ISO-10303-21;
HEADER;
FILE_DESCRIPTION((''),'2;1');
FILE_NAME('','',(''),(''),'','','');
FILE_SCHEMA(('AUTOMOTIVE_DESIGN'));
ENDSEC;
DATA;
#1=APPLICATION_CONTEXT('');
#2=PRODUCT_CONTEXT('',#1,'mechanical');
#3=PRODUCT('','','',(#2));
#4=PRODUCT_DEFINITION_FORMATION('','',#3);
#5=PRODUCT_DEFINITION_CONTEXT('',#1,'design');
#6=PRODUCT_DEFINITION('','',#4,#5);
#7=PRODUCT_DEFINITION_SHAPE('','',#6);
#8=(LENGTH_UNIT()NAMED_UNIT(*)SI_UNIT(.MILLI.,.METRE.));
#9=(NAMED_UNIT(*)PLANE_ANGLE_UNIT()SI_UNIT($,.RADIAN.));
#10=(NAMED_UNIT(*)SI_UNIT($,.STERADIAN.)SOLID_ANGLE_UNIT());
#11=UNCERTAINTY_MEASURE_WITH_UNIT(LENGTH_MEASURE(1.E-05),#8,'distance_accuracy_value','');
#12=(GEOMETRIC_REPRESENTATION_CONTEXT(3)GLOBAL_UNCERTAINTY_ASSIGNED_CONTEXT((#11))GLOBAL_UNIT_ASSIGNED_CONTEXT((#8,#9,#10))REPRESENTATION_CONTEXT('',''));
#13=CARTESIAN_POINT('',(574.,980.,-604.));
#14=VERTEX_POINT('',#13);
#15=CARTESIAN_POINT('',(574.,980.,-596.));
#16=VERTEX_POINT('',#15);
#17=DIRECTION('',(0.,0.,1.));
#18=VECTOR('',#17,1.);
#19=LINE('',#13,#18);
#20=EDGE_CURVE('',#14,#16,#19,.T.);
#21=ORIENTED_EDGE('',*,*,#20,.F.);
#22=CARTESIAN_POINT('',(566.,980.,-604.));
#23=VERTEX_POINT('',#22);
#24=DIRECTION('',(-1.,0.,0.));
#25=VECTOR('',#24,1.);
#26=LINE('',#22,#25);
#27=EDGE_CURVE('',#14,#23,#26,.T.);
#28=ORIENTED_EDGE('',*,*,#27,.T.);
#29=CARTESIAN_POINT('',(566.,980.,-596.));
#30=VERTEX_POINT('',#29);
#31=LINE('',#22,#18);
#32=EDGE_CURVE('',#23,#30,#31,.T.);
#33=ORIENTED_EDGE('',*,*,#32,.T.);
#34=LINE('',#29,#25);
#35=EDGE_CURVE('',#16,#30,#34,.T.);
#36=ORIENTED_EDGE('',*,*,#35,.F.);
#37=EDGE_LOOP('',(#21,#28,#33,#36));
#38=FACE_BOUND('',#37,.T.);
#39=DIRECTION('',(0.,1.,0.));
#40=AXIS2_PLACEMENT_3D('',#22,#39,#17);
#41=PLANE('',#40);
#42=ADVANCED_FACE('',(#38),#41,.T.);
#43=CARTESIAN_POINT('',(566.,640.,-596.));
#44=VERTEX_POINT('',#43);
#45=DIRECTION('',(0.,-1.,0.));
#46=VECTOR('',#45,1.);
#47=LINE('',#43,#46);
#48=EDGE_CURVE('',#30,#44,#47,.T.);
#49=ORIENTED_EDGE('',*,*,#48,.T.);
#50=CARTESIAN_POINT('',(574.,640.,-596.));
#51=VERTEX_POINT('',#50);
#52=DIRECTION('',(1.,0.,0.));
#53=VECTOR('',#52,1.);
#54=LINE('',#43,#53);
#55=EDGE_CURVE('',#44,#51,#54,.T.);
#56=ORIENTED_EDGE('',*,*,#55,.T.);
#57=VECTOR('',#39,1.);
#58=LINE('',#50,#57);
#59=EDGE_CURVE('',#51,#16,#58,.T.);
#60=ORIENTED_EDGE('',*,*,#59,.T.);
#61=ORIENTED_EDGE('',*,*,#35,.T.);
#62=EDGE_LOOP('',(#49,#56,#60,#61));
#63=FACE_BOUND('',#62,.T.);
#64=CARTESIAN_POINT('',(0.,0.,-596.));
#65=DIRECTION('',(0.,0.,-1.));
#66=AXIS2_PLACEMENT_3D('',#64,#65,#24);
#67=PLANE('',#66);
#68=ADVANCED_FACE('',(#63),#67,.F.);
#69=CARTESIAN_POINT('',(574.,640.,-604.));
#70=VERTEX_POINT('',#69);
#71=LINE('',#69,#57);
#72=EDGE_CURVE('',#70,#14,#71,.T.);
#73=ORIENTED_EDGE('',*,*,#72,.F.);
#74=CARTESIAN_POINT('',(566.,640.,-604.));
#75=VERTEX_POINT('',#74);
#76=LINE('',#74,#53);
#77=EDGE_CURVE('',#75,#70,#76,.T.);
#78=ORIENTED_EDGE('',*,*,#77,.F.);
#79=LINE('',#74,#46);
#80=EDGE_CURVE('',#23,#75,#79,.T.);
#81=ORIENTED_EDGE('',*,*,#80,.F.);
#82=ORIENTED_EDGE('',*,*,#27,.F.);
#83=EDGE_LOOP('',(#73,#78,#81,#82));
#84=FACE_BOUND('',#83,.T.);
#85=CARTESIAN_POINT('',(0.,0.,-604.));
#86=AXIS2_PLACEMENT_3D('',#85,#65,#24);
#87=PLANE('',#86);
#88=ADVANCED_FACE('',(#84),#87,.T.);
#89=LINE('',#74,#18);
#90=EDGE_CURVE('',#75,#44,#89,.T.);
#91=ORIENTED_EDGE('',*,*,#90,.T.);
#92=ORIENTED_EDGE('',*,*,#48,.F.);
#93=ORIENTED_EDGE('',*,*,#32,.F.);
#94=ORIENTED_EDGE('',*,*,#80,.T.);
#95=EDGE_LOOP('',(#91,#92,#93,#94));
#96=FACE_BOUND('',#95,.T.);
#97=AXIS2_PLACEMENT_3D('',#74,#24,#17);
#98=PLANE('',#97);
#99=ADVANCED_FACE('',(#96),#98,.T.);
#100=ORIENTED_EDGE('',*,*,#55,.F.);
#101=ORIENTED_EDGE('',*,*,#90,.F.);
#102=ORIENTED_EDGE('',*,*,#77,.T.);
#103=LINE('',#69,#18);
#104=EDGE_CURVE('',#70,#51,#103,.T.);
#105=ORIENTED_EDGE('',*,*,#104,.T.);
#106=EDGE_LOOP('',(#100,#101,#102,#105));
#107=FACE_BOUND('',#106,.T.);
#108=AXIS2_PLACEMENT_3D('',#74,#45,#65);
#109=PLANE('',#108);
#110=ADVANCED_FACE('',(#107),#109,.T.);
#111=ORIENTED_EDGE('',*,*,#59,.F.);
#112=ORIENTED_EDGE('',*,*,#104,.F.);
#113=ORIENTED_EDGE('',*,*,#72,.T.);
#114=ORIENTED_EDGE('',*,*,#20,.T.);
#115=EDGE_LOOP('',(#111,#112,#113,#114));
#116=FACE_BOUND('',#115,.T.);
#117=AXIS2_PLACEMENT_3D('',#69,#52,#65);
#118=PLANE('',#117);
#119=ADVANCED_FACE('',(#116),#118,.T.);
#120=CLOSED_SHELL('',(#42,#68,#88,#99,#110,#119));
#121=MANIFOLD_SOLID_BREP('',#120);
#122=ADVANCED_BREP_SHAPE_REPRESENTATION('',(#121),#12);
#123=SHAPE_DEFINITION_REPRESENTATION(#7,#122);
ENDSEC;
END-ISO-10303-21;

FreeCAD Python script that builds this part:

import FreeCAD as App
import Part
import Sketcher
from FreeCAD import Vector
Q = App.Units.Quantity


def add_polygon(sketch, points):
    """Adds a closed chain of lines whose ends are joined by coincident constraints."""
    first, n = sketch.GeometryCount, len(points)
    for a, b in zip(points, points[1:] + points[:1]):
        sketch.addGeometry(Part.LineSegment(App.Vector(*a, 0), App.Vector(*b, 0)), False)
    for i in range(n):
        sketch.addConstraint(Sketcher.Constraint("Coincident", first + i, 2, first + (i + 1) % n, 1))

doc = App.newDocument("Part")
body = doc.addObject("PartDesign::Body", "Body")

# Sketch on XY plane
sketch1 = doc.addObject("Sketcher::SketchObject", "Sketch")
body.addObject(sketch1)
sketch1.AttachmentSupport = (doc.XY_Plane, [""])
sketch1.MapMode = "FlatFace"
sketch1.AttachmentOffset = App.Placement(Vector(0, 0, -596), App.Rotation())
add_polygon(sketch1, [(566, 980), (566, 640), (574, 640), (574, 980)])  # lines 0-3
sketch1.addConstraint([
    Sketcher.Constraint("Vertical", 0),
    Sketcher.Constraint("Horizontal", 1),
    Sketcher.Constraint("Vertical", 2),
    Sketcher.Constraint("Horizontal", 3),
    Sketcher.Constraint("DistanceX", 1, 1, 1, 2, Q("8 mm")),
    Sketcher.Constraint("DistanceY", 0, 2, 0, 1, Q("340 mm")),
    Sketcher.Constraint("DistanceX", -1, 1, 0, 2, Q("566 mm")),
    Sketcher.Constraint("DistanceY", -1, 1, 0, 2, Q("640 mm")),
])
pad1 = doc.addObject("PartDesign::Pad", "Pad")
body.addObject(pad1)
pad1.Profile = sketch1
pad1.Length = 8
pad1.Reversed = True

doc.recompute()
